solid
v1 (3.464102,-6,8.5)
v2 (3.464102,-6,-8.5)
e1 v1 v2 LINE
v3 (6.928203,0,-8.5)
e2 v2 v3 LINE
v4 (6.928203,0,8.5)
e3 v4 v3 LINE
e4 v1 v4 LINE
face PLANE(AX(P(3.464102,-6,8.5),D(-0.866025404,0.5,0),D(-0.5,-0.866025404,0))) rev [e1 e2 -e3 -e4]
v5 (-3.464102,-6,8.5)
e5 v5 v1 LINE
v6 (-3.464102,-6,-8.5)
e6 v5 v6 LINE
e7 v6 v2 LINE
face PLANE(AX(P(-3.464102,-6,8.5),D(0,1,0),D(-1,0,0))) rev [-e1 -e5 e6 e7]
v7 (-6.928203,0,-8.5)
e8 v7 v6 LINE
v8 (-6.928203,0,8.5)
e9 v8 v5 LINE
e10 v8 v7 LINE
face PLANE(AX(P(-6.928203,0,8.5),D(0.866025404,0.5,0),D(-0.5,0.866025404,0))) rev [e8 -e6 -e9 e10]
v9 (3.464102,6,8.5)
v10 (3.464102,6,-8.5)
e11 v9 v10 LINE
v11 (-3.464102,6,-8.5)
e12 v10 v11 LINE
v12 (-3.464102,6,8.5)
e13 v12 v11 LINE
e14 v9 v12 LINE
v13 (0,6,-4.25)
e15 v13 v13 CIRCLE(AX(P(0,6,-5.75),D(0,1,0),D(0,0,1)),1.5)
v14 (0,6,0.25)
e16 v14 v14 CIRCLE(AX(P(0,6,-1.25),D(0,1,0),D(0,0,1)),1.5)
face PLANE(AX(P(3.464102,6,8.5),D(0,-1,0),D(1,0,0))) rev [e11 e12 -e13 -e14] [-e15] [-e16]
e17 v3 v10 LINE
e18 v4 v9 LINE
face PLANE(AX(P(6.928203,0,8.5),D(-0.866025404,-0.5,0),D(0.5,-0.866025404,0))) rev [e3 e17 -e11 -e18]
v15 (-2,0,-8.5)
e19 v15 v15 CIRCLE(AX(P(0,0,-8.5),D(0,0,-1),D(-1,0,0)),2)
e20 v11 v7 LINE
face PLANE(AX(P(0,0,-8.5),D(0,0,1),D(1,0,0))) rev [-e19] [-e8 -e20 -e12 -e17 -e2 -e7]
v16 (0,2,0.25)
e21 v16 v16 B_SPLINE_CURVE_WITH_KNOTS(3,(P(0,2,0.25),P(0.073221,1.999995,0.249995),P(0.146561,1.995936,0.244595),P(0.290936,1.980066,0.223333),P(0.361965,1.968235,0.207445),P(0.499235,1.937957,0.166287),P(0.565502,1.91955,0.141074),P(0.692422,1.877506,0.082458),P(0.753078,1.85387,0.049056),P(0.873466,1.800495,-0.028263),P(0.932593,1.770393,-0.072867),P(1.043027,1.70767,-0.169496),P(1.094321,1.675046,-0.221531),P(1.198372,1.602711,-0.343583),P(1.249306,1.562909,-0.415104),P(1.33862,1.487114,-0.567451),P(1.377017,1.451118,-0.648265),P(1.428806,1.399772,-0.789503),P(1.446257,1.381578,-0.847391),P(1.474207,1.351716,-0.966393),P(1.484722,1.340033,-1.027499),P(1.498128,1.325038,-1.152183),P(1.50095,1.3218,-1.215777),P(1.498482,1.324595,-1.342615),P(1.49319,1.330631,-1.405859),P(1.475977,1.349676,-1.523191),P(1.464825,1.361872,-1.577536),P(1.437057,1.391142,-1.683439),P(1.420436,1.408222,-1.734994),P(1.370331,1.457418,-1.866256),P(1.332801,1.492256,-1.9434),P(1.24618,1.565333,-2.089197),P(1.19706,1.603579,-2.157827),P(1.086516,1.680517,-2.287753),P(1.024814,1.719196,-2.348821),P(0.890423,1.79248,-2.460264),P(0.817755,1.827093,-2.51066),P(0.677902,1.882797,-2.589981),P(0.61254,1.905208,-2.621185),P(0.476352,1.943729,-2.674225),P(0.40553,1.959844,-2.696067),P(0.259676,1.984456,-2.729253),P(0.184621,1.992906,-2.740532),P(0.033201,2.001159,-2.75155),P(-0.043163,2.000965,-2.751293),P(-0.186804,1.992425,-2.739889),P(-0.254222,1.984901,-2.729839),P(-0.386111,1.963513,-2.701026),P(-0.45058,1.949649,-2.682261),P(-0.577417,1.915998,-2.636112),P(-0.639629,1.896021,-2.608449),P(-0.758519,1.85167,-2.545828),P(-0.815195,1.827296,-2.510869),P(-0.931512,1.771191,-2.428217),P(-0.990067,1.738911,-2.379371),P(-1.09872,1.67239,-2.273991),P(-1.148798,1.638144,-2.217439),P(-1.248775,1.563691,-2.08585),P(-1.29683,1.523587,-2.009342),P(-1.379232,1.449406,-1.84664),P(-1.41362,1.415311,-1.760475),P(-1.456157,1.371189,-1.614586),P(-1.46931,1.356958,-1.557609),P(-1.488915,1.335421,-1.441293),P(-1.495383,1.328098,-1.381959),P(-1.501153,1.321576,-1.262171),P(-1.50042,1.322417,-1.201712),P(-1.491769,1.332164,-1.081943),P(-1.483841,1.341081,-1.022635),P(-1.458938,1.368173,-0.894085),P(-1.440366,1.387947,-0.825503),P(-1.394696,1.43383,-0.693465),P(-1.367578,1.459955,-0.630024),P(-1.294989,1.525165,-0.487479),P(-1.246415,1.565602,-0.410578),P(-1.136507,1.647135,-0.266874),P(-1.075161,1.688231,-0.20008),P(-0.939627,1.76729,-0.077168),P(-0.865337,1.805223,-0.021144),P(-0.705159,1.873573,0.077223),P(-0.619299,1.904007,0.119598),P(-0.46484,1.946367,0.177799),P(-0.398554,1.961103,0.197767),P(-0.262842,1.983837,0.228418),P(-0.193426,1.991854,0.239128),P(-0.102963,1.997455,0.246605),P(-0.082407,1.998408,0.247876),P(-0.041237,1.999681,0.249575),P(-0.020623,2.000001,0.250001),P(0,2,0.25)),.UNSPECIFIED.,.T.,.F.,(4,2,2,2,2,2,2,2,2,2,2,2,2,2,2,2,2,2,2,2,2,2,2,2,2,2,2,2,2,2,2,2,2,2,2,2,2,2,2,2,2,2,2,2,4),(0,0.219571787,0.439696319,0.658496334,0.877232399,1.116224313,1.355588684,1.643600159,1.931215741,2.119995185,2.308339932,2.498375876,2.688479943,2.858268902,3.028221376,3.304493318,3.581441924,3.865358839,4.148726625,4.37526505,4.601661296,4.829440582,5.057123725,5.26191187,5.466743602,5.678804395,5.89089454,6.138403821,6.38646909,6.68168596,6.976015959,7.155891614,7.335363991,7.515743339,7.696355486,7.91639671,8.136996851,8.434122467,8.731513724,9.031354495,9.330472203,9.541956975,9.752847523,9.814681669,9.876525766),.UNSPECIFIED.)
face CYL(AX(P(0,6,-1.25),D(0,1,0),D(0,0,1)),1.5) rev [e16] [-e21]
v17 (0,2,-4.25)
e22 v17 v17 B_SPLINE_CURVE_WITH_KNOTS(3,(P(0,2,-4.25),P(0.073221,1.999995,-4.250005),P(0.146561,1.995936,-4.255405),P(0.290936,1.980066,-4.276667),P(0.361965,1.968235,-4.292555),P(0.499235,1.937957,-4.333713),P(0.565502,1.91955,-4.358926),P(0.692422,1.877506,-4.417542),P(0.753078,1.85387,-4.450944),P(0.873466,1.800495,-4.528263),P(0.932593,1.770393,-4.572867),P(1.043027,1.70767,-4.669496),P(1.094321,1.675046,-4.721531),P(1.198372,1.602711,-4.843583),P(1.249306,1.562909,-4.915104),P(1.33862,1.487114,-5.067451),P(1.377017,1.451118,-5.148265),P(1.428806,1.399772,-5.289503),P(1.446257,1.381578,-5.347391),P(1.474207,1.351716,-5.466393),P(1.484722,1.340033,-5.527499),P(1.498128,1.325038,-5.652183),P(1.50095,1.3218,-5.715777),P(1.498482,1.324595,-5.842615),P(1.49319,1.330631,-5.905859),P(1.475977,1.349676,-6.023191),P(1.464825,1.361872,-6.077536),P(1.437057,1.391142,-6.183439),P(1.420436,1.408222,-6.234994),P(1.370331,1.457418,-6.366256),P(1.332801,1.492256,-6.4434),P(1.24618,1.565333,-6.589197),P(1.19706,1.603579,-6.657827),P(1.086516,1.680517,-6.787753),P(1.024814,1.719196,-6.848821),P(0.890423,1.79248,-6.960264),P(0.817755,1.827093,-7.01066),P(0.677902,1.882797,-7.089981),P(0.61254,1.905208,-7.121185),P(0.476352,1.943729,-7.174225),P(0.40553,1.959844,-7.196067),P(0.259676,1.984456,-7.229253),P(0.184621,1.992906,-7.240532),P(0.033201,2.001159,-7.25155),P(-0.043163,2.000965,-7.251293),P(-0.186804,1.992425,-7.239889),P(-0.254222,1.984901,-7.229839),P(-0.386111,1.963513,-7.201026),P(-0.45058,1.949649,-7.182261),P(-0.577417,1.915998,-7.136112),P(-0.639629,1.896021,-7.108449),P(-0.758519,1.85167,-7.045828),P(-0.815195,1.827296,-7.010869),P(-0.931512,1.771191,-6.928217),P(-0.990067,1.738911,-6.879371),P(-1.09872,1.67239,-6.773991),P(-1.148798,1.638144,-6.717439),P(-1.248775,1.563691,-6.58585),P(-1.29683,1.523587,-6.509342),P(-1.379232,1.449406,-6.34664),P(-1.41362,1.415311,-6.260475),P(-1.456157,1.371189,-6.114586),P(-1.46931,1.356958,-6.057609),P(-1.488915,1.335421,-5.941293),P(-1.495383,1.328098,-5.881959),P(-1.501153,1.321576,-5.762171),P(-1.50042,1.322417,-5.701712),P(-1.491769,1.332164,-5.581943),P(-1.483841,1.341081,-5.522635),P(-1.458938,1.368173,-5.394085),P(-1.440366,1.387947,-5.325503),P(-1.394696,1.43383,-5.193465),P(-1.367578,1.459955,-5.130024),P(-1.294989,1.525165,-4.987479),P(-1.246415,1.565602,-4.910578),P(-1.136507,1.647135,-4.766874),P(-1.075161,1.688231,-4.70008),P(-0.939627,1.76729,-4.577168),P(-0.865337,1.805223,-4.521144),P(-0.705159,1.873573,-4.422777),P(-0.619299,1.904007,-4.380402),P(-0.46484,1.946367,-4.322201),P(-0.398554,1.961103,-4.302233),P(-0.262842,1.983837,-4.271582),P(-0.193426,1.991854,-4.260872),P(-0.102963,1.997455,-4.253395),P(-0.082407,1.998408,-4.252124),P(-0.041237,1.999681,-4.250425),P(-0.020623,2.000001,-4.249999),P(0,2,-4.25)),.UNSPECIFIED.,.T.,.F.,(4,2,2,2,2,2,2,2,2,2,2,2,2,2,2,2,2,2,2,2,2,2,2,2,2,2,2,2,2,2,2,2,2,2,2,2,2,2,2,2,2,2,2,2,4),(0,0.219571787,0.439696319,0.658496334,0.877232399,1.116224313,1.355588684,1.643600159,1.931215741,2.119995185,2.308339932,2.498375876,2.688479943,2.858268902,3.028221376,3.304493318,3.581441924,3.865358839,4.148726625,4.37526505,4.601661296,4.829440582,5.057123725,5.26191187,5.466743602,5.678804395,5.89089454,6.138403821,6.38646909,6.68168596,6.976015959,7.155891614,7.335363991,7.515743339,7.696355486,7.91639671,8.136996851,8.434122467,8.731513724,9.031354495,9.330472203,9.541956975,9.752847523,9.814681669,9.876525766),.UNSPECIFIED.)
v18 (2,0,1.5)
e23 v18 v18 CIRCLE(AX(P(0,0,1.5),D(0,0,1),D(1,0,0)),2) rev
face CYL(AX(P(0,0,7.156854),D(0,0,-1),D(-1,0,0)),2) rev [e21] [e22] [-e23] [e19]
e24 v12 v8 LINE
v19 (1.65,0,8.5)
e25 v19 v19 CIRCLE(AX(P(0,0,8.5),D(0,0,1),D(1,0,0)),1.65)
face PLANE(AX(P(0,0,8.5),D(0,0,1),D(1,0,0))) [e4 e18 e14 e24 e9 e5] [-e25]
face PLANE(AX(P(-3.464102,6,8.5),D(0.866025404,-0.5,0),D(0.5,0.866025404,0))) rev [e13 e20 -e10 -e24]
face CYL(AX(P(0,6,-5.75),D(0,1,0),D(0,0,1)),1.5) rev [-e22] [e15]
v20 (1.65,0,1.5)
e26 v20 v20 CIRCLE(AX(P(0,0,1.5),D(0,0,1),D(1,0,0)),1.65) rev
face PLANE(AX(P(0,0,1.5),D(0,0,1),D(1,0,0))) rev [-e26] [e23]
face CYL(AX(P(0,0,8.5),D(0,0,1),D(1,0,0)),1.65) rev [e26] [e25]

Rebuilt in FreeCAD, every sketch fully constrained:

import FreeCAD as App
import Part
import Sketcher

V = App.Vector
Q = App.Units.Quantity


def add_polygon(sketch, points):
    """Adds a closed chain of lines whose ends are joined by coincident constraints."""
    first, n = sketch.GeometryCount, len(points)
    for a, b in zip(points, points[1:] + points[:1]):
        sketch.addGeometry(Part.LineSegment(App.Vector(*a, 0), App.Vector(*b, 0)), False)
    for i in range(n):
        sketch.addConstraint(Sketcher.Constraint("Coincident", first + i, 2, first + (i + 1) % n, 1))

doc = App.newDocument("Part")
params = doc.addObject("Spreadsheet::Sheet", "Params")
for row, (alias, value) in enumerate([
    ("pad1_length", "17 mm"),
    ("sketch2_diameter", "4 mm"),
    ("pocket1_length", "10 mm"),
    ("sketch3_diameter", "3.3 mm"),
    ("hole_diameter", "3.3 mm"),
    ("hole_depth", "7 mm"),
    ("sketch4_diameter", "3 mm"),
    ("sketch5_diameter", "3 mm"),
], start=1):
    params.set(f"A{row}", alias)
    params.set(f"B{row}", "=" + value)
    params.setAlias(f"B{row}", alias)

body = doc.addObject("PartDesign::Body", "Body")

sketch1 = doc.addObject("Sketcher::SketchObject", "Sketch")
body.addObject(sketch1)
sketch1.AttachmentSupport = (doc.XY_Plane, [""])
sketch1.MapMode = "FlatFace"
add_polygon(sketch1, [(3, 6), (-3, 6), (-7, 0), (-3, -6), (3, -6), (7, 0)])
sketch1.addConstraint([
    Sketcher.Constraint("Horizontal", 0),
    Sketcher.Constraint("Horizontal", 3),
    Sketcher.Constraint("Symmetric", 0, 2, 3, 2, -1, 1),
    Sketcher.Constraint("Symmetric", 1, 2, 4, 2, -1, 1),
    Sketcher.Constraint("PointOnObject", 1, 2, -1),
    Sketcher.Constraint("Parallel", 2, 5),
    Sketcher.Constraint("Vertical", 0, 2, 2, 2),
    Sketcher.Constraint("Angle", 1, Q("-120 deg")),
    Sketcher.Constraint("DistanceY", -1, 1, 0, 2, 6.0),
    Sketcher.Constraint("DistanceX", 0, 2, -1, 1, 3.464102),
])
pad1 = doc.addObject("PartDesign::Pad", "Pad")
body.addObject(pad1)
pad1.Profile = sketch1
pad1.setExpression("Length", "Params.pad1_length")
pad1.Midplane = True

sketch2 = doc.addObject("Sketcher::SketchObject", "Sketch001")
body.addObject(sketch2)
sketch2.AttachmentSupport = (doc.XY_Plane, [""])
sketch2.MapMode = "FlatFace"
sketch2.AttachmentOffset = App.Placement(V(0, 0, 1.5), App.Rotation())
sketch2.addGeometry(Part.Circle(V(0, 0, 0), V(0, 0, 1), 2), False)
sketch2.addConstraint([
    Sketcher.Constraint("Coincident", 0, 3, -1, 1),
    Sketcher.Constraint("Diameter", 0, 4.0),
])
sketch2.setExpression("Constraints[1]", "Params.sketch2_diameter")
pocket1 = doc.addObject("PartDesign::Pocket", "Pocket")
body.addObject(pocket1)
pocket1.Profile = sketch2
pocket1.setExpression("Length", "Params.pocket1_length")

sketch3 = doc.addObject("Sketcher::SketchObject", "Sketch002")
body.addObject(sketch3)
sketch3.AttachmentSupport = (doc.XY_Plane, [""])
sketch3.MapMode = "FlatFace"
sketch3.AttachmentOffset = App.Placement(V(0, 0, 8.5), App.Rotation())
sketch3.addGeometry(Part.Circle(V(0, 0, 0), V(0, 0, 1), 1.6), False)
sketch3.addConstraint([
    Sketcher.Constraint("Coincident", 0, 3, -1, 1),
    Sketcher.Constraint("Diameter", 0, 3.3),
])
sketch3.setExpression("Constraints[1]", "Params.sketch3_diameter")
doc.recompute()
hole = doc.addObject("PartDesign::Hole", "Hole")
body.addObject(hole)
hole.Profile = sketch3
hole.ThreadType = "None"
hole.setExpression("Diameter", "Params.hole_diameter")
hole.DepthType = "Dimension"
hole.setExpression("Depth", "Params.hole_depth")
hole.DrillPoint = "Angled"
hole.DrillPointAngle = 118

sketch4 = doc.addObject("Sketcher::SketchObject", "Sketch003")
body.addObject(sketch4)
sketch4.AttachmentSupport = (doc.XZ_Plane, [""])
sketch4.MapMode = "FlatFace"
sketch4.AttachmentOffset = App.Placement(V(0, 0, -6), App.Rotation())
sketch4.addGeometry(Part.Circle(V(0, -5.8, 0), V(0, 0, 1), 1.5), False)
sketch4.addConstraint([
    Sketcher.Constraint("PointOnObject", 0, 3, -2),
    Sketcher.Constraint("Diameter", 0, 3.0),
    Sketcher.Constraint("DistanceY", 0, 3, -1, 1, 5.75),
])
sketch4.setExpression("Constraints[1]", "Params.sketch4_diameter")
pocket2 = doc.addObject("PartDesign::Pocket", "Pocket001")
body.addObject(pocket2)
pocket2.Profile = sketch4
pocket2.Type = "UpToFirst"
pocket2.Reversed = True

sketch5 = doc.addObject("Sketcher::SketchObject", "Sketch004")
body.addObject(sketch5)
sketch5.AttachmentSupport = (doc.XZ_Plane, [""])
sketch5.MapMode = "FlatFace"
sketch5.AttachmentOffset = App.Placement(V(0, 0, -6), App.Rotation())
sketch5.addGeometry(Part.Circle(V(0, -1.2, 0), V(0, 0, 1), 1.5), False)
sketch5.addConstraint([
    Sketcher.Constraint("PointOnObject", 0, 3, -2),
    Sketcher.Constraint("Diameter", 0, 3.0),
    Sketcher.Constraint("DistanceY", 0, 3, -1, 1, 1.25),
])
sketch5.setExpression("Constraints[1]", "Params.sketch5_diameter")
pocket3 = doc.addObject("PartDesign::Pocket", "Pocket002")
body.addObject(pocket3)
pocket3.Profile = sketch5
pocket3.Type = "UpToFirst"
pocket3.Reversed = True

doc.recompute()
